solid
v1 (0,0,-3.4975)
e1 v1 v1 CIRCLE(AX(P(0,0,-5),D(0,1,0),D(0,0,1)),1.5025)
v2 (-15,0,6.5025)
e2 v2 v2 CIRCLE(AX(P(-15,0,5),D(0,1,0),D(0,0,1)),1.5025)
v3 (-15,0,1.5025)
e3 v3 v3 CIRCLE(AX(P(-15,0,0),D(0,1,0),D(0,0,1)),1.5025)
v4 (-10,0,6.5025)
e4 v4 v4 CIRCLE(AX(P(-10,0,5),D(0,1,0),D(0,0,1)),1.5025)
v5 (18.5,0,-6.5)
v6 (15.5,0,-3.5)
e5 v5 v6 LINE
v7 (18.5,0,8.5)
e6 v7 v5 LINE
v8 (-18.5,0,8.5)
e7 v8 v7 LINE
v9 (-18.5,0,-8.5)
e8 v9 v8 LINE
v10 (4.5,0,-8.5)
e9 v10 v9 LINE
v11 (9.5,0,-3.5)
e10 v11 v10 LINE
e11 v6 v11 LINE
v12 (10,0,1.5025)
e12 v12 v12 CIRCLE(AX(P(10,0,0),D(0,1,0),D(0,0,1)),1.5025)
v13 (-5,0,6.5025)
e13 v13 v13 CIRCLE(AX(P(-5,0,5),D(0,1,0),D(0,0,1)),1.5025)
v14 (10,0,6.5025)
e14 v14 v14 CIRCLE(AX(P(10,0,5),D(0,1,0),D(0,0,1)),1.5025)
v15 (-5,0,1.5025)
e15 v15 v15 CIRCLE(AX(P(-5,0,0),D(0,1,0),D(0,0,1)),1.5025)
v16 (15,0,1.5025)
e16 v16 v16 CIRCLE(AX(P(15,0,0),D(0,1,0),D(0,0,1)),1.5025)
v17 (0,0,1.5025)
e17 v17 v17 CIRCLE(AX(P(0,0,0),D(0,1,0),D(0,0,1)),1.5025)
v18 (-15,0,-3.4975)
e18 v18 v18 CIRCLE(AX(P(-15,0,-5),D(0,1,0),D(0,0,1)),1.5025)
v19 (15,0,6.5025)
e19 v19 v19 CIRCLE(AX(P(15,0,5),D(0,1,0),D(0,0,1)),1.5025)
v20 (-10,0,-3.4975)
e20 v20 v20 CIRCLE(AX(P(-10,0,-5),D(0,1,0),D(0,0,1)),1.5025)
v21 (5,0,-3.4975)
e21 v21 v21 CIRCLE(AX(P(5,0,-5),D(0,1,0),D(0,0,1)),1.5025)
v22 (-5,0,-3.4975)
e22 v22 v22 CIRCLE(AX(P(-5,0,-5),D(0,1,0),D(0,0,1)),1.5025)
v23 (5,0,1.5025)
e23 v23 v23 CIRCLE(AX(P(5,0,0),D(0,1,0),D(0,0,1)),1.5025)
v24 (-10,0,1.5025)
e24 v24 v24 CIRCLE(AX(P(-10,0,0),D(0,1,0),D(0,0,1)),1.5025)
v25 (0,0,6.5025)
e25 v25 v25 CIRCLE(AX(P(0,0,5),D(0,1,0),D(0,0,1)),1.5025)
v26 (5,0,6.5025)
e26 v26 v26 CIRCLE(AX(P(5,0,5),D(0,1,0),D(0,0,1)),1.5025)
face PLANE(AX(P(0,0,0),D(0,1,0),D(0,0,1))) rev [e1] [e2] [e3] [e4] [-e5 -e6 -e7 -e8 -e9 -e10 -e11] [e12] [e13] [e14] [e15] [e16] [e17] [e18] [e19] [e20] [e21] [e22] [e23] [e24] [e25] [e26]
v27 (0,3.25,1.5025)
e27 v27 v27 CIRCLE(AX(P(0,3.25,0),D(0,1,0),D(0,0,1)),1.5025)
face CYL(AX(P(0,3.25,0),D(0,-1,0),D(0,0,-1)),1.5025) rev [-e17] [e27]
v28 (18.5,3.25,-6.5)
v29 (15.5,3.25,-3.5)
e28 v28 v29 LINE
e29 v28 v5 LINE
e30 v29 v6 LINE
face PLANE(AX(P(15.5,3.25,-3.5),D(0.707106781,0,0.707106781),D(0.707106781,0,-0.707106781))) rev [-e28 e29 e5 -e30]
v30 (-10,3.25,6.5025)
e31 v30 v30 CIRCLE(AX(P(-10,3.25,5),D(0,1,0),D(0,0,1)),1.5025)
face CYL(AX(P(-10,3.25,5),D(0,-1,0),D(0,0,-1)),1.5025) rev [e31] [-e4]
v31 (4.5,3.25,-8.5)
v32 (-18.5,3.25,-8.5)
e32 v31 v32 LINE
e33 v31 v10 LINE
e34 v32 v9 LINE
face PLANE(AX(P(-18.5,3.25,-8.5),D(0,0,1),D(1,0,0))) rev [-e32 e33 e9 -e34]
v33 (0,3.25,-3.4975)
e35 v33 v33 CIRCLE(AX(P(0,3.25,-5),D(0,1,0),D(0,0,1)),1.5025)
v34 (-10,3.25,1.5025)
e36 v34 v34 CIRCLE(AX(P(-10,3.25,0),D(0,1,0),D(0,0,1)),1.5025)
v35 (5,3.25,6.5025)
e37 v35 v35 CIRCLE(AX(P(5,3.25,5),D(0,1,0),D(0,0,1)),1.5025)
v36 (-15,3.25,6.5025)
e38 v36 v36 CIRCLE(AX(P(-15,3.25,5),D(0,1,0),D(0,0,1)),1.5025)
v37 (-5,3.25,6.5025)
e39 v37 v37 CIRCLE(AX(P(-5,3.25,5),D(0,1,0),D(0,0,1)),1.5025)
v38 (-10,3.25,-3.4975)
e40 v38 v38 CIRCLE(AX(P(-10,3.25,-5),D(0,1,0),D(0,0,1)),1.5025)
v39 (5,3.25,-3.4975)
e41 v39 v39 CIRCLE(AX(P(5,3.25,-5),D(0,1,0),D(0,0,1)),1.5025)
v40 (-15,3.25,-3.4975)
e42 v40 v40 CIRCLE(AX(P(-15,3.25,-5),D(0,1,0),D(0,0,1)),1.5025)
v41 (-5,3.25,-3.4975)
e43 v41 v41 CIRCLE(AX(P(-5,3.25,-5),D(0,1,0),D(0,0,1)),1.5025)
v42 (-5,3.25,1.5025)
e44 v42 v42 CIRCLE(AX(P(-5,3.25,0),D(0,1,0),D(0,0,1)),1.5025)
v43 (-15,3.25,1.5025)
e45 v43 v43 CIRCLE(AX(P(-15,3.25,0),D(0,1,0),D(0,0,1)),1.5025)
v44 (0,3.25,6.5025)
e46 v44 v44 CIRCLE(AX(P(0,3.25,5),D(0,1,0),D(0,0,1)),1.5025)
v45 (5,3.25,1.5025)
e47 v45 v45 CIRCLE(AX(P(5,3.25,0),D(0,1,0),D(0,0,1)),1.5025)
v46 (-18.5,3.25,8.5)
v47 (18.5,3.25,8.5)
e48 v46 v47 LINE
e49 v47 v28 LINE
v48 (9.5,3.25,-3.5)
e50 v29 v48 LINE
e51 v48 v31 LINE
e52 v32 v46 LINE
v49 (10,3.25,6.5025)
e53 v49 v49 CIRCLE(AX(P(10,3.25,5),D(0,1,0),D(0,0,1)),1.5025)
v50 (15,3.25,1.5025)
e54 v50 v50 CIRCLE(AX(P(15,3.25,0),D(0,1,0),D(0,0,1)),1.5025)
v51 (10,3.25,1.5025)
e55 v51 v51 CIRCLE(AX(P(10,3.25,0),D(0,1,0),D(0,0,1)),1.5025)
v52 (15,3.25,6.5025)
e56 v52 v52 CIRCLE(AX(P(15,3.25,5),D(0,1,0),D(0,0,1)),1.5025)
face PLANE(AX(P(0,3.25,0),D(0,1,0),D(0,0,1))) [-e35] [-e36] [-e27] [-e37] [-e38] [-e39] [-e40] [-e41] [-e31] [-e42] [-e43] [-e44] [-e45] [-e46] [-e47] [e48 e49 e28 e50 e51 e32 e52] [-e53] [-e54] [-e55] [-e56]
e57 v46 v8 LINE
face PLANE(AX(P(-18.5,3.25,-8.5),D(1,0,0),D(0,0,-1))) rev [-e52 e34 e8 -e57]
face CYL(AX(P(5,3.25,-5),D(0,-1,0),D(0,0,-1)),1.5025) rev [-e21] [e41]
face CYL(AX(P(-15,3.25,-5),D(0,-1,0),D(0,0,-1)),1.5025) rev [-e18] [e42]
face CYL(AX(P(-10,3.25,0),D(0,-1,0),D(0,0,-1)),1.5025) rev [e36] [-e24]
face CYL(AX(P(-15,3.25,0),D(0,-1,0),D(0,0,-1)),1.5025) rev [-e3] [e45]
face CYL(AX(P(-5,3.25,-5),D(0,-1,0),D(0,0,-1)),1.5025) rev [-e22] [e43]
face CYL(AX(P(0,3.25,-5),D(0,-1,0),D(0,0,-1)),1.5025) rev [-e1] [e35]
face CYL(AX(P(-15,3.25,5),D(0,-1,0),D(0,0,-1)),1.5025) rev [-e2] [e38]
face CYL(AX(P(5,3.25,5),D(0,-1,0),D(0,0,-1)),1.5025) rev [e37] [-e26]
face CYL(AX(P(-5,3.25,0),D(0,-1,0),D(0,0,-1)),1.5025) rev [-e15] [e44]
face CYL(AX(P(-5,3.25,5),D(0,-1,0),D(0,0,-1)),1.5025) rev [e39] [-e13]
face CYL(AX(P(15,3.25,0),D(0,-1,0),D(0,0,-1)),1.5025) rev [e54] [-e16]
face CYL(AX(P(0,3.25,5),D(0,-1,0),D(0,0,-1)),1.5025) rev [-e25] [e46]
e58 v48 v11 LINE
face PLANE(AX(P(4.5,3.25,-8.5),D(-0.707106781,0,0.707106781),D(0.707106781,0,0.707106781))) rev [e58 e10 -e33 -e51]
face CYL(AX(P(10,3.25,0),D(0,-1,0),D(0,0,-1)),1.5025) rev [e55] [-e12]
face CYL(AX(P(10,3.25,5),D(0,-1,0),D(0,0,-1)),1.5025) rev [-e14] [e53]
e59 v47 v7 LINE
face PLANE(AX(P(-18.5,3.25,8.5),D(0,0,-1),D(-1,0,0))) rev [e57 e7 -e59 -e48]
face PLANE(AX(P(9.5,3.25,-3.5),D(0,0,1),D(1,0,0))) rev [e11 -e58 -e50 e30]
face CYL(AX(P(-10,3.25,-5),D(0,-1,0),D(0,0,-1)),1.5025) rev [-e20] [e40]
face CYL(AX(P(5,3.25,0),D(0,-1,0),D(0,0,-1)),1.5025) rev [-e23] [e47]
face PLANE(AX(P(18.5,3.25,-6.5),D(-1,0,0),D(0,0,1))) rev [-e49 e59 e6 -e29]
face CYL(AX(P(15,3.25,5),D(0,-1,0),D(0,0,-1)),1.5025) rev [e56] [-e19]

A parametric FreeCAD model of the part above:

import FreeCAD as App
import Part
import Sketcher
Q = App.Units.Quantity


def add_polygon(sketch, points):
    """Adds a closed chain of lines whose ends are joined by coincident constraints."""
    first, n = sketch.GeometryCount, len(points)
    for a, b in zip(points, points[1:] + points[:1]):
        sketch.addGeometry(Part.LineSegment(App.Vector(*a, 0), App.Vector(*b, 0)), False)
    for i in range(n):
        sketch.addConstraint(Sketcher.Constraint("Coincident", first + i, 2, first + (i + 1) % n, 1))

doc = App.newDocument("Part")
body = doc.addObject("PartDesign::Body", "Body")

# Sketch on XZ plane
sketch1 = doc.addObject("Sketcher::SketchObject", "Sketch")
body.addObject(sketch1)
sketch1.AttachmentSupport = (doc.XZ_Plane, [""])
sketch1.MapMode = "FlatFace"
add_polygon(sketch1, [(4.5, -8.5), (-18.5, -8.5), (-18.5, 8.5), (18.5, 8.5), (18.5, -6.5), (15.5, -3.5), (9.5, -3.5)])  # lines 0-6
sketch1.addGeometry(Part.Circle(App.Vector(15, 5, 0), App.Vector(0, 0, 1), 1.5), False)  # 7
sketch1.addGeometry(Part.Circle(App.Vector(10, 5, 0), App.Vector(0, 0, 1), 1.5), False)  # 8
sketch1.addGeometry(Part.Circle(App.Vector(5, 5, 0), App.Vector(0, 0, 1), 1.5), False)  # 9
sketch1.addGeometry(Part.Circle(App.Vector(0, 5, 0), App.Vector(0, 0, 1), 1.5), False)  # 10
sketch1.addGeometry(Part.Circle(App.Vector(-5, 5, 0), App.Vector(0, 0, 1), 1.5), False)  # 11
sketch1.addGeometry(Part.Circle(App.Vector(-10, 5, 0), App.Vector(0, 0, 1), 1.5), False)  # 12
sketch1.addGeometry(Part.Circle(App.Vector(-15, 5, 0), App.Vector(0, 0, 1), 1.5), False)  # 13
sketch1.addGeometry(Part.Circle(App.Vector(15, 0, 0), App.Vector(0, 0, 1), 1.5), False)  # 14
sketch1.addGeometry(Part.Circle(App.Vector(10, 0, 0), App.Vector(0, 0, 1), 1.5), False)  # 15
sketch1.addGeometry(Part.Circle(App.Vector(5, 0, 0), App.Vector(0, 0, 1), 1.5), False)  # 16
sketch1.addGeometry(Part.Circle(App.Vector(5, -5, 0), App.Vector(0, 0, 1), 1.5), False)  # 17
sketch1.addGeometry(Part.Circle(App.Vector(0, 0, 0), App.Vector(0, 0, 1), 1.5), False)  # 18
sketch1.addGeometry(Part.Circle(App.Vector(-5, 0, 0), App.Vector(0, 0, 1), 1.5), False)  # 19
sketch1.addGeometry(Part.Circle(App.Vector(-10, 0, 0), App.Vector(0, 0, 1), 1.5), False)  # 20
sketch1.addGeometry(Part.Circle(App.Vector(-15, 0, 0), App.Vector(0, 0, 1), 1.5), False)  # 21
sketch1.addGeometry(Part.Circle(App.Vector(0, -5, 0), App.Vector(0, 0, 1), 1.5), False)  # 22
sketch1.addGeometry(Part.Circle(App.Vector(-5, -5, 0), App.Vector(0, 0, 1), 1.5), False)  # 23
sketch1.addGeometry(Part.Circle(App.Vector(-10, -5, 0), App.Vector(0, 0, 1), 1.5), False)  # 24
sketch1.addGeometry(Part.Circle(App.Vector(-15, -5, 0), App.Vector(0, 0, 1), 1.5), False)  # 25
sketch1.addConstraint(Sketcher.Constraint("Horizontal", 0))
sketch1.addConstraint(Sketcher.Constraint("Vertical", 1))
sketch1.addConstraint(Sketcher.Constraint("Horizontal", 2))
sketch1.addConstraint(Sketcher.Constraint("Vertical", 3))
sketch1.addConstraint(Sketcher.Constraint("Horizontal", 5))
sketch1.addConstraint(Sketcher.Constraint("Coincident", 18, 3, -1, 1))
sketch1.addConstraint(Sketcher.Constraint("Equal", 7, 8))
sketch1.addConstraint(Sketcher.Constraint("Equal", 8, 9))
sketch1.addConstraint(Sketcher.Constraint("Equal", 9, 10))
sketch1.addConstraint(Sketcher.Constraint("Equal", 10, 11))
sketch1.addConstraint(Sketcher.Constraint("Equal", 11, 12))
sketch1.addConstraint(Sketcher.Constraint("Equal", 12, 13))
sketch1.addConstraint(Sketcher.Constraint("Equal", 13, 14))
sketch1.addConstraint(Sketcher.Constraint("Equal", 14, 15))
sketch1.addConstraint(Sketcher.Constraint("Equal", 15, 16))
sketch1.addConstraint(Sketcher.Constraint("Equal", 16, 17))
sketch1.addConstraint(Sketcher.Constraint("Equal", 17, 18))
sketch1.addConstraint(Sketcher.Constraint("Equal", 18, 19))
sketch1.addConstraint(Sketcher.Constraint("Equal", 19, 20))
sketch1.addConstraint(Sketcher.Constraint("Equal", 20, 21))
sketch1.addConstraint(Sketcher.Constraint("Equal", 21, 22))
sketch1.addConstraint(Sketcher.Constraint("Equal", 22, 23))
sketch1.addConstraint(Sketcher.Constraint("Equal", 23, 24))
sketch1.addConstraint(Sketcher.Constraint("Equal", 24, 25))
sketch1.addConstraint(Sketcher.Constraint("Symmetric", 11, 3, 17, 3, -1, 1))
sketch1.addConstraint(Sketcher.Constraint("Symmetric", 16, 3, 19, 3, -1, 1))
sketch1.addConstraint(Sketcher.Constraint("Symmetric", 15, 3, 20, 3, -1, 1))
sketch1.addConstraint(Sketcher.Constraint("Symmetric", 14, 3, 21, 3, -1, 1))
sketch1.addConstraint(Sketcher.Constraint("Symmetric", 10, 3, 22, 3, -1, 1))
sketch1.addConstraint(Sketcher.Constraint("Symmetric", 9, 3, 23, 3, -1, 1))
sketch1.addConstraint(Sketcher.Constraint("Symmetric", 8, 3, 24, 3, -1, 1))
sketch1.addConstraint(Sketcher.Constraint("Symmetric", 7, 3, 25, 3, -1, 1))
sketch1.addConstraint(Sketcher.Constraint("Symmetric", 0, 2, 2, 2, -1, 1))
sketch1.addConstraint(Sketcher.Constraint("Symmetric", 9, 3, 11, 3, -2))
sketch1.addConstraint(Sketcher.Constraint("Symmetric", 8, 3, 12, 3, -2))
sketch1.addConstraint(Sketcher.Constraint("Symmetric", 7, 3, 13, 3, -2))
sketch1.addConstraint(Sketcher.Constraint("PointOnObject", 10, 3, -2))
sketch1.addConstraint(Sketcher.Constraint("PointOnObject", 14, 3, -1))
sketch1.addConstraint(Sketcher.Constraint("PointOnObject", 15, 3, -1))
sketch1.addConstraint(Sketcher.Constraint("PointOnObject", 16, 3, -1))
sketch1.addConstraint(Sketcher.Constraint("Perpendicular", 4, 6))
sketch1.addConstraint(Sketcher.Constraint("Horizontal", 7, 3, 8, 3))
sketch1.addConstraint(Sketcher.Constraint("Horizontal", 8, 3, 9, 3))
sketch1.addConstraint(Sketcher.Constraint("Horizontal", 9, 3, 10, 3))
sketch1.addConstraint(Sketcher.Constraint("Vertical", 7, 3, 14, 3))
sketch1.addConstraint(Sketcher.Constraint("Vertical", 8, 3, 15, 3))
sketch1.addConstraint(Sketcher.Constraint("Vertical", 9, 3, 16, 3))
sketch1.addConstraint(Sketcher.Constraint("DistanceX", 0, 2, 0, 1, 23.0))
sketch1.addConstraint(Sketcher.Constraint("DistanceX", 2, 1, 2, 2, 37.0))
sketch1.addConstraint(Sketcher.Constraint("DistanceX", 5, 2, 5, 1, 6.0))
sketch1.addConstraint(Sketcher.Constraint("DistanceY", 1, 1, 1, 2, 17.0))
sketch1.addConstraint(Sketcher.Constraint("DistanceY", 3, 2, 3, 1, 15.0))
sketch1.addConstraint(Sketcher.Constraint("Angle", 4, Q("135 deg")))
sketch1.addConstraint(Sketcher.Constraint("Diameter", 7, 3.005))
sketch1.addConstraint(Sketcher.Constraint("DistanceX", -1, 1, 7, 3, 15.0))
sketch1.addConstraint(Sketcher.Constraint("DistanceY", -1, 1, 7, 3, 5.0))
sketch1.addConstraint(Sketcher.Constraint("DistanceX", -1, 1, 8, 3, 10.0))
sketch1.addConstraint(Sketcher.Constraint("DistanceX", -1, 1, 9, 3, 5.0))
pad1 = doc.addObject("PartDesign::Pad", "Pad")
body.addObject(pad1)
pad1.Profile = sketch1
pad1.Length = 3.25
pad1.Reversed = True

doc.recompute()
